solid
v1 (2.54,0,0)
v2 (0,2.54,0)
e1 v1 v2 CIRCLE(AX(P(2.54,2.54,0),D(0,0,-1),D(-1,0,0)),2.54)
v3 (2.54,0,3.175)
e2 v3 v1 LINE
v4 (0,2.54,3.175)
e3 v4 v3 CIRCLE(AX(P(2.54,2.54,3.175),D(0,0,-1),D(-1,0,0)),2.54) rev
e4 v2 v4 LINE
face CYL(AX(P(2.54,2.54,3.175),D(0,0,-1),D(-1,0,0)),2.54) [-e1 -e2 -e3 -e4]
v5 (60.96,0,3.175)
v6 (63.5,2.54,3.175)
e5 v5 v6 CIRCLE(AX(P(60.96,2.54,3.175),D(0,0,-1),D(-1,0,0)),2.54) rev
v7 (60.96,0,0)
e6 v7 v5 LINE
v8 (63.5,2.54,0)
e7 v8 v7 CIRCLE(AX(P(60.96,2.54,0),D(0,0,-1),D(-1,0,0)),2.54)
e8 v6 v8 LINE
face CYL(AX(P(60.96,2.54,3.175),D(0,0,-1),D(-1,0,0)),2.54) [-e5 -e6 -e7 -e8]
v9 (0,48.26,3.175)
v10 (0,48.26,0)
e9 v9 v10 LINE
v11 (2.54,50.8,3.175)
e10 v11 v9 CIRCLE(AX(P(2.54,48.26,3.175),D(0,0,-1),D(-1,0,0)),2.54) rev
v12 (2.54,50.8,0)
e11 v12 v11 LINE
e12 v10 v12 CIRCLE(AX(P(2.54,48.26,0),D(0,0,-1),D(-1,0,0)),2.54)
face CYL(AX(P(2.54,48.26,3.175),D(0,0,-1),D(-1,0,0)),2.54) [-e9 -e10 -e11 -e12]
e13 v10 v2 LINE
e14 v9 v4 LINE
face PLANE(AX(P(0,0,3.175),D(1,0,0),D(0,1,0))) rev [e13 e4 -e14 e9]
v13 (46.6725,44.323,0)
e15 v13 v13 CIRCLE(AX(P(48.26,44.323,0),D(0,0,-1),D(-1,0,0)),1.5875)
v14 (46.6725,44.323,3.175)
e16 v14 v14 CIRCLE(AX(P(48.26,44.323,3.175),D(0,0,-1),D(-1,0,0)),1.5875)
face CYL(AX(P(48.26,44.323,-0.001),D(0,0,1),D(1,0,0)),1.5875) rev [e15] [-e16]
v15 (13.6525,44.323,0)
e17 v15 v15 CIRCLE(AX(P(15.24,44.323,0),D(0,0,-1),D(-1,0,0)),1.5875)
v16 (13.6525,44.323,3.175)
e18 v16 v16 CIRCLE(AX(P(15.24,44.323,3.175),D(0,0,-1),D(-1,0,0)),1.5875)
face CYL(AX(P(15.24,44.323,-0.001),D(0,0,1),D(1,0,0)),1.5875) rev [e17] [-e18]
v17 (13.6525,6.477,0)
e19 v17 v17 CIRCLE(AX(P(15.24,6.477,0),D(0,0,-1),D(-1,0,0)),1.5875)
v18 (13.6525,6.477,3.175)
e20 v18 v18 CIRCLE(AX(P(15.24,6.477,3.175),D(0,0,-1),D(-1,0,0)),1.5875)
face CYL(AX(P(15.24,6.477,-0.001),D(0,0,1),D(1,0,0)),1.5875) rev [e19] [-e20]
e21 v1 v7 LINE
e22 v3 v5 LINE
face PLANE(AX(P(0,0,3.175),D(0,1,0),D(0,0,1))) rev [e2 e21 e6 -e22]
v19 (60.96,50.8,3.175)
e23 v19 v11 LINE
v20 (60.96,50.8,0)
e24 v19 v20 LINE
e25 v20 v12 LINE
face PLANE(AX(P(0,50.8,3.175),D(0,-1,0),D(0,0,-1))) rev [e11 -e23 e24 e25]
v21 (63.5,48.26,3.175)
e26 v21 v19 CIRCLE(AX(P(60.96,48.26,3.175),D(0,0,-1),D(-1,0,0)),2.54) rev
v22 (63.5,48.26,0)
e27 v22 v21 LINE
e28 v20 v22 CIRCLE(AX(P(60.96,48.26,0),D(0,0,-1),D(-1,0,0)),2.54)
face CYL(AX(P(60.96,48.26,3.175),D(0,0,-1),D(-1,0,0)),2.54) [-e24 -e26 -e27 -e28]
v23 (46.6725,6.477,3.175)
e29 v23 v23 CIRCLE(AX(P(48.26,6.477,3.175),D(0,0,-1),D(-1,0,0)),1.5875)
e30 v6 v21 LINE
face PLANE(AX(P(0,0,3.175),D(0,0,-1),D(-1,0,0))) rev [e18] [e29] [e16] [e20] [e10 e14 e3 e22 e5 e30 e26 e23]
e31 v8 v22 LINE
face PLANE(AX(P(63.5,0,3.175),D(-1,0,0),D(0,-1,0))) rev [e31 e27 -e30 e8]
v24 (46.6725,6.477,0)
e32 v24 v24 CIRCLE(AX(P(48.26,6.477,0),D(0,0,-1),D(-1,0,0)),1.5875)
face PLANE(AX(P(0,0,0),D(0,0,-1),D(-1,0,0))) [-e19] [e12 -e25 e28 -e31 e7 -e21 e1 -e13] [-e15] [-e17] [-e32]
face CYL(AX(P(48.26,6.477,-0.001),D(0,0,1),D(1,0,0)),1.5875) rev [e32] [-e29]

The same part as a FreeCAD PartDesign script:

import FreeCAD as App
import Part
import Sketcher

V = App.Vector
Q = App.Units.Quantity


def edges_at(feature, points):
    """Names of the edges that pass closest to the given points."""
    edges = feature.Shape.Edges
    near = lambda p: min(range(len(edges)), key=lambda i: edges[i].distToShape(Part.Vertex(*p))[0])
    return sorted({f"Edge{near(p) + 1}" for p in points})


def add_polygon(sketch, points):
    """Adds a closed chain of lines whose ends are joined by coincident constraints."""
    first, n = sketch.GeometryCount, len(points)
    for a, b in zip(points, points[1:] + points[:1]):
        sketch.addGeometry(Part.LineSegment(App.Vector(*a, 0), App.Vector(*b, 0)), False)
    for i in range(n):
        sketch.addConstraint(Sketcher.Constraint("Coincident", first + i, 2, first + (i + 1) % n, 1))

doc = App.newDocument("Part")
body = doc.addObject("PartDesign::Body", "Body")

sketch1 = body.newObject("Sketcher::SketchObject", "Sketch")
sketch1.AttachmentSupport = (doc.getObject("XY_Plane"), [""])
sketch1.MapMode = "FlatFace"
add_polygon(sketch1, [(0, 51), (0, 0), (64, 0), (64, 51)])
sketch1.addConstraint([
    Sketcher.Constraint("Vertical", 0),
    Sketcher.Constraint("Horizontal", 1),
    Sketcher.Constraint("Vertical", 2),
    Sketcher.Constraint("Horizontal", 3),
    Sketcher.Constraint("Coincident", 0, 2, -1, 1),
    Sketcher.Constraint("DistanceY", 0, 2, 0, 1, Q("2 in")),
    Sketcher.Constraint("DistanceX", 1, 1, 1, 2, Q("2.5 in")),
])
pad1 = body.newObject("PartDesign::Pad", "Pad")
pad1.Profile = sketch1
pad1.Length = Q("0.125 in")
doc.recompute()

fillet = body.newObject("PartDesign::Fillet", "Fillet")
fillet.Base = (pad1, edges_at(pad1, [
    (0, 50.8, 1.587),
    (63.5, 50.8, 1.587),
    (63.5, 0, 1.587),
    (0, 0, 1.587),
]))
fillet.Radius = Q("0.1 in")

sketch2 = body.newObject("Sketcher::SketchObject", "Sketch001")
sketch2.AttachmentSupport = (doc.getObject("XY_Plane"), [""])
sketch2.MapMode = "FlatFace"
sketch2.AttachmentOffset = App.Placement(V(0, 0, 0.125 * 25.4), App.Rotation())
sketch2.addGeometry([
    Part.Circle(V(15.2, 6.5, 0), V(0, 0, 1), 1.6),
    Part.Circle(V(15.2, 44.3, 0), V(0, 0, 1), 1.6),
    Part.Circle(V(48.3, 44.3, 0), V(0, 0, 1), 1.6),
    Part.Circle(V(48.3, 6.5, 0), V(0, 0, 1), 1.6),
], False)
sketch2.addConstraint([
    Sketcher.Constraint("Equal", 0, 1),
    Sketcher.Constraint("Equal", 1, 2),
    Sketcher.Constraint("Equal", 2, 3),
    Sketcher.Constraint("Horizontal", 1, 3, 2, 3),
    Sketcher.Constraint("Horizontal", 0, 3, 3, 3),
    Sketcher.Constraint("Vertical", 0, 3, 1, 3),
    Sketcher.Constraint("Vertical", 2, 3, 3, 3),
    Sketcher.Constraint("Diameter", 0, Q("0.125 in")),
    Sketcher.Constraint("DistanceX", -1, 1, 0, 3, Q("0.6 in")),
    Sketcher.Constraint("DistanceX", -1, 1, 2, 3, Q("1.9 in")),
    Sketcher.Constraint("DistanceY", 0, 3, 1, 3, Q("1.49 in")),
    Sketcher.Constraint("DistanceY", -1, 1, 0, 3, Q("0.255 in")),
])
pocket1 = body.newObject("PartDesign::Pocket", "Pocket")
pocket1.Profile = sketch2
pocket1.Length = Q("0.125 in")

doc.recompute()
